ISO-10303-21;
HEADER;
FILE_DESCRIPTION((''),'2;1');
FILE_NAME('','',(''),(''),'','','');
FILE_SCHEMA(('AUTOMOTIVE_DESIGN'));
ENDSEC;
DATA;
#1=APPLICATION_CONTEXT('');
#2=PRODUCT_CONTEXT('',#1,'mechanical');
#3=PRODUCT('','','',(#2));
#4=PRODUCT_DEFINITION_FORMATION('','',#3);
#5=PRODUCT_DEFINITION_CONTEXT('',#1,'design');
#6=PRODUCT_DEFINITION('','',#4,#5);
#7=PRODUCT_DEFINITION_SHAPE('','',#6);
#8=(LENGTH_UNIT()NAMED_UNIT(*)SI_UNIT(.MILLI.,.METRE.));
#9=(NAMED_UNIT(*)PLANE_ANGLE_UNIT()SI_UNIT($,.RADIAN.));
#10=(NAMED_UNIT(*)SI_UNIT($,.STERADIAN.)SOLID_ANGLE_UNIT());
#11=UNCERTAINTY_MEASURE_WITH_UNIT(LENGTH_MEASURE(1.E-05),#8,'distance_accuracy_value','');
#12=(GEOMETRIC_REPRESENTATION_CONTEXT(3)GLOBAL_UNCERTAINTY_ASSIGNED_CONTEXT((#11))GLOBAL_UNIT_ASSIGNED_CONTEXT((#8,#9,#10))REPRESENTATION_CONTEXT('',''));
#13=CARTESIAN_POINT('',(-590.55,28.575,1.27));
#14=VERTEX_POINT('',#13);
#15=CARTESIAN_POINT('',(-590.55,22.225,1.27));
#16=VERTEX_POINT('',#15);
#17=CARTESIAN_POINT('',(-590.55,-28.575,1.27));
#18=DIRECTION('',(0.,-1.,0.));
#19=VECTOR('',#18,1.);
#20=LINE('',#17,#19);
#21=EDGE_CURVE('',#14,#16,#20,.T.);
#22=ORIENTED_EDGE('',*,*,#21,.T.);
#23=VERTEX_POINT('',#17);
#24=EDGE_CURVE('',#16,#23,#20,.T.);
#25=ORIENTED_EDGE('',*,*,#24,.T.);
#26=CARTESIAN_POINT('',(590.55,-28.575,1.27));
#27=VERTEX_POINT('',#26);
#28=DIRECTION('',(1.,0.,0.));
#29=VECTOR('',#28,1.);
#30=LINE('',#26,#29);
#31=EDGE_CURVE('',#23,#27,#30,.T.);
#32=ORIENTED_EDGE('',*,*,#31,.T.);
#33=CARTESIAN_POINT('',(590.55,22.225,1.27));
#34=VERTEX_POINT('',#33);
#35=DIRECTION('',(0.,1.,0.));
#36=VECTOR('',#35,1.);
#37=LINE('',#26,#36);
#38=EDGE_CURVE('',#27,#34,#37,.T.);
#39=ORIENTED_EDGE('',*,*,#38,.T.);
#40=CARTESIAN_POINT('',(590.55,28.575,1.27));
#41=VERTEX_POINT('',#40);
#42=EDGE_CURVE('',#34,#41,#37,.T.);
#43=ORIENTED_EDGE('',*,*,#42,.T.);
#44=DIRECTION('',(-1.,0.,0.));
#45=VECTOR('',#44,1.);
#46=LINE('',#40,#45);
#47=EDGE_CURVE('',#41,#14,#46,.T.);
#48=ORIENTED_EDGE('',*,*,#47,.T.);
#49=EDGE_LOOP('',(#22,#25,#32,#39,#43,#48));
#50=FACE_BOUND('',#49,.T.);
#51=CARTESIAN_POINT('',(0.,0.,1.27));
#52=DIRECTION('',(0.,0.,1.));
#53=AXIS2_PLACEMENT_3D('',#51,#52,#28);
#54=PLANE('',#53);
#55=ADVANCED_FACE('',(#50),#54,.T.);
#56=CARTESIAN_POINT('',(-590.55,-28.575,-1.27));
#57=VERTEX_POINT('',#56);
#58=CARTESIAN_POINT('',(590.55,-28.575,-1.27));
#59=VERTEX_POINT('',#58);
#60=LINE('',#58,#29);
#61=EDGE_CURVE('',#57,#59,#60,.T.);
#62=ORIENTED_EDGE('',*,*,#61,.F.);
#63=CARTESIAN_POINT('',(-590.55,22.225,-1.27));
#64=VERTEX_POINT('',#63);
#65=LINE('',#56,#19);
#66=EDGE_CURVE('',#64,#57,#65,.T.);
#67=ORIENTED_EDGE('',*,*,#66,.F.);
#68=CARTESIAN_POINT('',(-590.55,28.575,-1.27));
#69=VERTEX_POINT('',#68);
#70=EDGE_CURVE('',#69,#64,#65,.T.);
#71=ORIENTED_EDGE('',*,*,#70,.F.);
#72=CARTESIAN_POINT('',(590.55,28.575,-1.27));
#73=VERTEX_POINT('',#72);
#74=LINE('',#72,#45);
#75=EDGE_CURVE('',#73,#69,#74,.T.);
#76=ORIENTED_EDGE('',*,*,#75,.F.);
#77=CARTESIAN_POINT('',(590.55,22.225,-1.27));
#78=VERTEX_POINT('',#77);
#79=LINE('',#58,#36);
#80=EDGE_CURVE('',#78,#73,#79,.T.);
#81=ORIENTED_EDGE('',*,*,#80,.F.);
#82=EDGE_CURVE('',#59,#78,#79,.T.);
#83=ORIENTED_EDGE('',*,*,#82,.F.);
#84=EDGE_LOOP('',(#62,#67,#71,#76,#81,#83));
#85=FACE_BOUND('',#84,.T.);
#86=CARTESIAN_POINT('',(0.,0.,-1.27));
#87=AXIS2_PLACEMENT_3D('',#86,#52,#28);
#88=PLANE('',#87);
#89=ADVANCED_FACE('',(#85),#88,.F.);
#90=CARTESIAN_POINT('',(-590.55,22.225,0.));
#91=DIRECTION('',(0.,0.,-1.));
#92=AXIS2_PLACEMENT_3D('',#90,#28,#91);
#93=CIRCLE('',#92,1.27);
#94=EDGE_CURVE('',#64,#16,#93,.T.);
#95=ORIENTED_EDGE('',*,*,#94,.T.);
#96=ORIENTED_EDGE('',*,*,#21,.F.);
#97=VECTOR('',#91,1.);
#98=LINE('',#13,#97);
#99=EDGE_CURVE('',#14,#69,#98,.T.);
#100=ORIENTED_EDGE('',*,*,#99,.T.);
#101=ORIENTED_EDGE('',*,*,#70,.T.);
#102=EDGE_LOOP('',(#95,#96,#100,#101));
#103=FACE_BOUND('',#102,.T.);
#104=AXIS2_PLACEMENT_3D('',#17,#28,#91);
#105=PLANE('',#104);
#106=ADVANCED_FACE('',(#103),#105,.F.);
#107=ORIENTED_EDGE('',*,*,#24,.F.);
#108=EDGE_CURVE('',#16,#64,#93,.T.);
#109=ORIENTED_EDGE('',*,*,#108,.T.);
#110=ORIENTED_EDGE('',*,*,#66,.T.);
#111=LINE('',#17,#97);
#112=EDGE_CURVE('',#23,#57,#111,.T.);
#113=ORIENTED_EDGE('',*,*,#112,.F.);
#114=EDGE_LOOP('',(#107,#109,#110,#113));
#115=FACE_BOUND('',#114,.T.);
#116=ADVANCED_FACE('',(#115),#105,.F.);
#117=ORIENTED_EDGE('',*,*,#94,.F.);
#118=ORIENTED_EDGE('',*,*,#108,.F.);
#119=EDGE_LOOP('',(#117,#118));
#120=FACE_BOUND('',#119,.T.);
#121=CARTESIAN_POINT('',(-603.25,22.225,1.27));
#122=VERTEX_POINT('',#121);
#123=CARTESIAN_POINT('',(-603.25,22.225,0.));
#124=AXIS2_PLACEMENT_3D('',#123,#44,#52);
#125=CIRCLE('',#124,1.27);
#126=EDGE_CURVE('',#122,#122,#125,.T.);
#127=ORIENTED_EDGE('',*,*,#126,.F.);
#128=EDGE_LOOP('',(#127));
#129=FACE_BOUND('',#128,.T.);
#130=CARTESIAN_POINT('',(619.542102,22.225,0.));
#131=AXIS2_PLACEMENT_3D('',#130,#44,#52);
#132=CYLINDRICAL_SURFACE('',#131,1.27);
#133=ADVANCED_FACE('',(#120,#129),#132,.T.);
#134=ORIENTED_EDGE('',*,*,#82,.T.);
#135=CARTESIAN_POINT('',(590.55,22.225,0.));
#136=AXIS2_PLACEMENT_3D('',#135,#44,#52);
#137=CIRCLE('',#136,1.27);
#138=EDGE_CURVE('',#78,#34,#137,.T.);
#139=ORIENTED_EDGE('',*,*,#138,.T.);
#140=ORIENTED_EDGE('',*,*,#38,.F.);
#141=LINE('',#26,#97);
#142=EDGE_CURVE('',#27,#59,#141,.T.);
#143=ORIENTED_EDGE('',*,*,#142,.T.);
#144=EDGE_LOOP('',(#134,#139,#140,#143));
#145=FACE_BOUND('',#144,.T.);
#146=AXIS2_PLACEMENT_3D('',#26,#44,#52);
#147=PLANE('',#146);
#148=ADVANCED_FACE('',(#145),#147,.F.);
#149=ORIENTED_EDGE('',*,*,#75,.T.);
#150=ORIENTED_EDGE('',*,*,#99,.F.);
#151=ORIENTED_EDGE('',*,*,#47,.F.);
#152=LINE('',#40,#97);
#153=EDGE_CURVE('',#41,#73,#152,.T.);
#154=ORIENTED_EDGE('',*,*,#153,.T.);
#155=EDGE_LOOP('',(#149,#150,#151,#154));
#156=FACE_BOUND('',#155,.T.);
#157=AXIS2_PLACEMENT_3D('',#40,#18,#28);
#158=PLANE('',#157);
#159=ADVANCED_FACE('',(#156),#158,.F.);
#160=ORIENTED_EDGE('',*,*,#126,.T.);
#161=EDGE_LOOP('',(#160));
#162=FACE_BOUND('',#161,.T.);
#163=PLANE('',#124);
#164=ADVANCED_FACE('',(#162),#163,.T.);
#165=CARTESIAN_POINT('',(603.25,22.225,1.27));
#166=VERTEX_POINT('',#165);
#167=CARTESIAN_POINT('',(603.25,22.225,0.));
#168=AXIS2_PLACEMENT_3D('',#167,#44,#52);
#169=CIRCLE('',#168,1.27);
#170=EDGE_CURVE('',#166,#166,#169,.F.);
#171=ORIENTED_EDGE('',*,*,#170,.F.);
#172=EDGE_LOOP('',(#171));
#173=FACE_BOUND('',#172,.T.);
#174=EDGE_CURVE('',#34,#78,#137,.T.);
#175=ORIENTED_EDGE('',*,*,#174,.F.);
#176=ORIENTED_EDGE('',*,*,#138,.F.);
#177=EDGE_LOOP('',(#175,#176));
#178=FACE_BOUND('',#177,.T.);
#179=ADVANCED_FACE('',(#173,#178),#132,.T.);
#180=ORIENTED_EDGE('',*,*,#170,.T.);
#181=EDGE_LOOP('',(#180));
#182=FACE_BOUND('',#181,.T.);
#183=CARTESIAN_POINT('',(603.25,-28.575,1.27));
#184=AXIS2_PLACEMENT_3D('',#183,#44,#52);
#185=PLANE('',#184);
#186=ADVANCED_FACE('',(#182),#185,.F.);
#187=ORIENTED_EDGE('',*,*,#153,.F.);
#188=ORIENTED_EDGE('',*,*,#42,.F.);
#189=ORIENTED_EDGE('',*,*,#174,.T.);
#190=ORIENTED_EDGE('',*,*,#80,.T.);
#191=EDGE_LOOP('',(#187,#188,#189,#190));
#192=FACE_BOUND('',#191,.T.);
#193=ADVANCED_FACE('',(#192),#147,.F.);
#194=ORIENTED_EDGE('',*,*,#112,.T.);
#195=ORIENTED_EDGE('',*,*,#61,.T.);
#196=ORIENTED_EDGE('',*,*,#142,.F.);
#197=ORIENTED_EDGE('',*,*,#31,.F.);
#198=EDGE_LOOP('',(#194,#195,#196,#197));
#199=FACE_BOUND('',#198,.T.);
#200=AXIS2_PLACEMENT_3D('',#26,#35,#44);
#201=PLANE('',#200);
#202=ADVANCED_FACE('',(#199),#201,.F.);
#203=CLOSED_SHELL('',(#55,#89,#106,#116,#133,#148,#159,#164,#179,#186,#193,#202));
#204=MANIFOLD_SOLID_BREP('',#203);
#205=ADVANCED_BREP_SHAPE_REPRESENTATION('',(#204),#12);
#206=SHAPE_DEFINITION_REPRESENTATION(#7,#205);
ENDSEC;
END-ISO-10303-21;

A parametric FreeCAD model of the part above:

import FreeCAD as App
import Part
import Sketcher
Q = App.Units.Quantity

doc = App.newDocument("Part")
body = doc.addObject("PartDesign::Body", "Body")

# Sketch on XY plane
sketch1 = body.newObject("Sketcher::SketchObject", "Sketch")
sketch1.AttachmentSupport = (doc.getObject("XY_Plane"), [""])
sketch1.MapMode = "FlatFace"
sketch1.addGeometry([
    Part.LineSegment(App.Vector(-591, 29, 0), App.Vector(-591, -29, 0)),
    Part.LineSegment(App.Vector(-591, -29, 0), App.Vector(591, -29, 0)),
    Part.LineSegment(App.Vector(591, -29, 0), App.Vector(591, 29, 0)),
    Part.LineSegment(App.Vector(591, 29, 0), App.Vector(-591, 29, 0)),
], False)
sketch1.addConstraint([
    Sketcher.Constraint("Coincident", 0, 2, 1, 1),
    Sketcher.Constraint("Coincident", 1, 2, 2, 1),
    Sketcher.Constraint("Coincident", 2, 2, 3, 1),
    Sketcher.Constraint("Coincident", 3, 2, 0, 1),
    Sketcher.Constraint("Vertical", 0),
    Sketcher.Constraint("Horizontal", 1),
    Sketcher.Constraint("Vertical", 2),
    Sketcher.Constraint("Horizontal", 3),
    Sketcher.Constraint("Symmetric", 0, 2, 2, 2, -1, 1),
    Sketcher.Constraint("DistanceX", 1, 1, 1, 2, Q("46.5 in")),
    Sketcher.Constraint("DistanceY", 0, 2, 0, 1, Q("2.25 in")),
])
pad1 = body.newObject("PartDesign::Pad", "Pad")
pad1.Profile = sketch1
pad1.Length = Q("0.1 in")
pad1.Midplane = True

# Sketch on YZ plane
sketch2 = body.newObject("Sketcher::SketchObject", "Sketch001")
sketch2.AttachmentSupport = (doc.getObject("YZ_Plane"), [""])
sketch2.MapMode = "FlatFace"
sketch2.AttachmentOffset = App.Placement(App.Vector(0, 0, -23.25 * 25.4), App.Rotation())
sketch2.addGeometry(Part.Circle(App.Vector(22.2, 0, 0), App.Vector(0, 0, 1), 1.3), False)
sketch2.addConstraint([
    Sketcher.Constraint("PointOnObject", 0, 3, -1),
    Sketcher.Constraint("Diameter", 0, Q("0.1 in")),
    Sketcher.Constraint("DistanceX", -1, 1, 0, 3, Q("0.875 in")),
])
pad2 = body.newObject("PartDesign::Pad", "Pad001")
pad2.Profile = sketch2
pad2.Type = "TwoLengths"
pad2.Length = Q("0.5 in")
pad2.Length2 = Q("47 in")
pad2.Reversed = True

doc.recompute()
